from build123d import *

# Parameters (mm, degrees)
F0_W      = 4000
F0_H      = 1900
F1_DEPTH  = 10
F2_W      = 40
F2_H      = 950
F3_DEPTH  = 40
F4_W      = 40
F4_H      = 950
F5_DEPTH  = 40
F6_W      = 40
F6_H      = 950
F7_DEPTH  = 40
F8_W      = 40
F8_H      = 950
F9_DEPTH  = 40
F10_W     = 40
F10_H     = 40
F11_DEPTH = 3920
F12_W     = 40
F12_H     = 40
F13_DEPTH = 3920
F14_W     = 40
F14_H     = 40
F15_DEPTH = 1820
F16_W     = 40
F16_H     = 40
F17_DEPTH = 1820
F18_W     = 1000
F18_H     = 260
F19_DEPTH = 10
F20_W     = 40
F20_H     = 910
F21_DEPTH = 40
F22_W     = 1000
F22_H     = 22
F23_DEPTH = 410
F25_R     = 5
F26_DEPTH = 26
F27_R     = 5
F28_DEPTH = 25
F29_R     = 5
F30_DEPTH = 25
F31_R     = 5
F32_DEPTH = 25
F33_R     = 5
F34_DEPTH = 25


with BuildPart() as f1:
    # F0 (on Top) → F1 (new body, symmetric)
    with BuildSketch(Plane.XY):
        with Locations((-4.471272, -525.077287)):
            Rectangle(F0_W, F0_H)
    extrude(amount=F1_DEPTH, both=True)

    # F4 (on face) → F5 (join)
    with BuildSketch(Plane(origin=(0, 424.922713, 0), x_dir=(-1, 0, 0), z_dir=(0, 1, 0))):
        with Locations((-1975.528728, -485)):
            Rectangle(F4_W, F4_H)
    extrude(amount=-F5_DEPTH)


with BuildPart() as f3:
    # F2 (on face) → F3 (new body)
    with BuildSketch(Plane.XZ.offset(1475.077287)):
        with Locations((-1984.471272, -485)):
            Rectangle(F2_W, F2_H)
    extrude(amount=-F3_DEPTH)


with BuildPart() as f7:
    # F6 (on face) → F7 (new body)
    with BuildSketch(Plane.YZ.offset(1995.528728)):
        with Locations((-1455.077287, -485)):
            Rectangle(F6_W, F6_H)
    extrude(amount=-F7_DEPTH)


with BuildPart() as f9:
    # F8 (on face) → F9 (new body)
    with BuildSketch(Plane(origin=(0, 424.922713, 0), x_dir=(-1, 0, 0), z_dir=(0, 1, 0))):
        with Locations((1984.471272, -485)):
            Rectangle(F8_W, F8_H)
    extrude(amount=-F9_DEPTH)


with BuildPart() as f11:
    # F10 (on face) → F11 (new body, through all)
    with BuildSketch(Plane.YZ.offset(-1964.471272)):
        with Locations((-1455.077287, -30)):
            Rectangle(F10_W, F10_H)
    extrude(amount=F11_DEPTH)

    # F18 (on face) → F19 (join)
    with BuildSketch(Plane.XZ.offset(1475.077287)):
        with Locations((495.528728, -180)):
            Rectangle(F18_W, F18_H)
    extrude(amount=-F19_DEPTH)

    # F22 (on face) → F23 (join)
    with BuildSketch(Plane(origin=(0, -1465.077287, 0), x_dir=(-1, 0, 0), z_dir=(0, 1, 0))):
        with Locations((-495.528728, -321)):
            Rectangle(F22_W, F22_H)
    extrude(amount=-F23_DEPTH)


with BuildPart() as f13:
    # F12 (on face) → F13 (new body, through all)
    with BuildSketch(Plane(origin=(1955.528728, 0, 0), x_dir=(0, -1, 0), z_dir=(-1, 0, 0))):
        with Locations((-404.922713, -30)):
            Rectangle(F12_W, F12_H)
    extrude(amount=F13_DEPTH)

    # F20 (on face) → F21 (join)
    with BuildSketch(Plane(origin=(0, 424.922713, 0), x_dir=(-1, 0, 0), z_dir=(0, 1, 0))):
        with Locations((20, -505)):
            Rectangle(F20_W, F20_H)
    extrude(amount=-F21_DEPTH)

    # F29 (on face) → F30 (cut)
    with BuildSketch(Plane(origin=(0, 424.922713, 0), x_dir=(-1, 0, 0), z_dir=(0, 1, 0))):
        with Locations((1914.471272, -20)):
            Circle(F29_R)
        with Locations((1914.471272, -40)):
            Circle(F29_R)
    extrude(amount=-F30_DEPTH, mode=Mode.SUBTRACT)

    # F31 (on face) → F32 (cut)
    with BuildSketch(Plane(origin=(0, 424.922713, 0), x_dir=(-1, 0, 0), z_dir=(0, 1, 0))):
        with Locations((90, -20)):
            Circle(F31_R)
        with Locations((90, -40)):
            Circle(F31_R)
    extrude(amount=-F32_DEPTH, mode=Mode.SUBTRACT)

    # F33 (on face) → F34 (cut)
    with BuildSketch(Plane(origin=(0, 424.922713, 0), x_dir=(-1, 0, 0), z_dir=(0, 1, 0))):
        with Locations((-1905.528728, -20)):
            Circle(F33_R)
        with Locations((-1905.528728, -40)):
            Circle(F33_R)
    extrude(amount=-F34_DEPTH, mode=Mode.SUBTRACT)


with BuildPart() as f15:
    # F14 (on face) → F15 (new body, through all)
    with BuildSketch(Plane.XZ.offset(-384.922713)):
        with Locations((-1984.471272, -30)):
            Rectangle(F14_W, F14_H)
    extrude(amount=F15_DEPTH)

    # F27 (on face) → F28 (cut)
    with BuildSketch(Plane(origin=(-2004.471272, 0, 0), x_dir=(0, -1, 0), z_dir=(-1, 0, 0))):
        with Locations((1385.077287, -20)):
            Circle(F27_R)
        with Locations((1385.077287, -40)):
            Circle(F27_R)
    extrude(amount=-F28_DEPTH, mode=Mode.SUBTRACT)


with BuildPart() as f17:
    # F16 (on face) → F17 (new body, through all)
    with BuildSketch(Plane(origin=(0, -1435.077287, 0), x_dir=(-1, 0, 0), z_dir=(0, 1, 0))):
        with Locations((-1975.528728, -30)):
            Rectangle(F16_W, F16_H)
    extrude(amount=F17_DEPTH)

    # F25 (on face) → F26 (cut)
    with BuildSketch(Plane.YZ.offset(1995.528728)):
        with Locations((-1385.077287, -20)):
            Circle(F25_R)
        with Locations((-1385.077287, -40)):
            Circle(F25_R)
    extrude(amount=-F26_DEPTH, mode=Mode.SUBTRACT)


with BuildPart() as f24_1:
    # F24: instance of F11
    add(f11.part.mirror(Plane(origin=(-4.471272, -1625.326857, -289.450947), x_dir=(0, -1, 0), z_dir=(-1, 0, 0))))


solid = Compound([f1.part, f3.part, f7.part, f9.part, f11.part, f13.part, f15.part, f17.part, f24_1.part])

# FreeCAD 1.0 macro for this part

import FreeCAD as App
import Part
import Sketcher


def add_polygon(sketch, points):
    """Adds a closed chain of lines whose ends are joined by coincident constraints."""
    first, n = sketch.GeometryCount, len(points)
    for a, b in zip(points, points[1:] + points[:1]):
        sketch.addGeometry(Part.LineSegment(App.Vector(*a, 0), App.Vector(*b, 0)), False)
    for i in range(n):
        sketch.addConstraint(Sketcher.Constraint("Coincident", first + i, 2, first + (i + 1) % n, 1))

doc = App.newDocument("Part")
body = doc.addObject("PartDesign::Body", "Body")

sketch1 = body.newObject("Sketcher::SketchObject", "Sketch")
sketch1.AttachmentSupport = (doc.getObject("XY_Plane"), [""])
sketch1.MapMode = "FlatFace"
add_polygon(sketch1, [(-2004.471272, 424.922713), (-2004.471272, -1475.077287), (1995.528728, -1475.077287), (1995.528728, 424.922713)])
sketch1.addConstraint([
    Sketcher.Constraint("Vertical", 0),
    Sketcher.Constraint("Horizontal", 1),
    Sketcher.Constraint("Vertical", 2),
    Sketcher.Constraint("Horizontal", 3),
    Sketcher.Constraint("DistanceX", 1, 1, 1, 2, 4000.0),
    Sketcher.Constraint("DistanceY", 0, 2, 0, 1, 1900.0),
    Sketcher.Constraint("DistanceX", 0, 2, -1, 1, 2004.471272),
    Sketcher.Constraint("DistanceY", 0, 2, -1, 1, 1475.077287),
])
pad1 = body.newObject("PartDesign::Pad", "Pad")
pad1.Profile = sketch1
pad1.Length = 20
pad1.Midplane = True

sketch2 = body.newObject("Sketcher::SketchObject", "Sketch001")
sketch2.AttachmentSupport = (doc.getObject("XZ_Plane"), [""])
sketch2.MapMode = "FlatFace"
sketch2.AttachmentOffset = App.Placement(App.Vector(0, 0, -424.922713), App.Rotation())
add_polygon(sketch2, [(1995.528728, -10), (1995.528728, -960), (1955.528728, -960), (1955.528728, -10)])
sketch2.addConstraint([
    Sketcher.Constraint("Vertical", 0),
    Sketcher.Constraint("Horizontal", 1),
    Sketcher.Constraint("Vertical", 2),
    Sketcher.Constraint("Horizontal", 3),
    Sketcher.Constraint("DistanceX", 1, 2, 1, 1, 40.0),
    Sketcher.Constraint("DistanceY", 0, 2, 0, 1, 950.0),
    Sketcher.Constraint("DistanceY", 0, 2, -1, 1, 960.0),
    Sketcher.Constraint("DistanceX", -1, 1, 0, 2, 1995.528728),
])
pad2 = body.newObject("PartDesign::Pad", "Pad001")
pad2.Profile = sketch2
pad2.Length = 40
body2 = doc.addObject("PartDesign::Body", "Body001")

sketch3 = body2.newObject("Sketcher::SketchObject", "Sketch002")
sketch3.AttachmentSupport = (doc.getObject("XZ_Plane001"), [""])
sketch3.MapMode = "FlatFace"
sketch3.AttachmentOffset = App.Placement(App.Vector(0, 0, 1475.077287), App.Rotation())
add_polygon(sketch3, [(-2004.471272, -10), (-2004.471272, -960), (-1964.471272, -960), (-1964.471272, -10)])
sketch3.addConstraint([
    Sketcher.Constraint("Vertical", 0),
    Sketcher.Constraint("Horizontal", 1),
    Sketcher.Constraint("Vertical", 2),
    Sketcher.Constraint("Horizontal", 3),
    Sketcher.Constraint("DistanceX", 1, 1, 1, 2, 40.0),
    Sketcher.Constraint("DistanceY", 0, 2, 0, 1, 950.0),
    Sketcher.Constraint("DistanceY", 0, 2, -1, 1, 960.0),
    Sketcher.Constraint("DistanceX", 0, 2, -1, 1, 2004.471272),
])
pad3 = body2.newObject("PartDesign::Pad", "Pad002")
pad3.Profile = sketch3
pad3.Length = 40
pad3.Reversed = True
body3 = doc.addObject("PartDesign::Body", "Body002")

sketch4 = body3.newObject("Sketcher::SketchObject", "Sketch003")
sketch4.AttachmentSupport = (doc.getObject("YZ_Plane002"), [""])
sketch4.MapMode = "FlatFace"
sketch4.AttachmentOffset = App.Placement(App.Vector(0, 0, 1995.528728), App.Rotation())
add_polygon(sketch4, [(-1475.077287, -10), (-1475.077287, -960), (-1435.077287, -960), (-1435.077287, -10)])
sketch4.addConstraint([
    Sketcher.Constraint("Vertical", 0),
    Sketcher.Constraint("Horizontal", 1),
    Sketcher.Constraint("Vertical", 2),
    Sketcher.Constraint("Horizontal", 3),
    Sketcher.Constraint("DistanceX", 1, 1, 1, 2, 40.0),
    Sketcher.Constraint("DistanceY", 0, 2, 0, 1, 950.0),
    Sketcher.Constraint("DistanceY", 0, 2, -1, 1, 960.0),
    Sketcher.Constraint("DistanceX", 0, 2, -1, 1, 1475.077287),
])
pad4 = body3.newObject("PartDesign::Pad", "Pad003")
pad4.Profile = sketch4
pad4.Length = 40
pad4.Reversed = True
body4 = doc.addObject("PartDesign::Body", "Body003")

sketch5 = body4.newObject("Sketcher::SketchObject", "Sketch004")
sketch5.AttachmentSupport = (doc.getObject("XZ_Plane003"), [""])
sketch5.MapMode = "FlatFace"
sketch5.AttachmentOffset = App.Placement(App.Vector(0, 0, -424.922713), App.Rotation())
add_polygon(sketch5, [(-1964.471272, -10), (-1964.471272, -960), (-2004.471272, -960), (-2004.471272, -10)])
sketch5.addConstraint([
    Sketcher.Constraint("Vertical", 0),
    Sketcher.Constraint("Horizontal", 1),
    Sketcher.Constraint("Vertical", 2),
    Sketcher.Constraint("Horizontal", 3),
    Sketcher.Constraint("DistanceX", 1, 2, 1, 1, 40.0),
    Sketcher.Constraint("DistanceY", 0, 2, 0, 1, 950.0),
    Sketcher.Constraint("DistanceY", 0, 2, -1, 1, 960.0),
    Sketcher.Constraint("DistanceX", 0, 2, -1, 1, 1964.471272),
])
pad5 = body4.newObject("PartDesign::Pad", "Pad004")
pad5.Profile = sketch5
pad5.Length = 40
body5 = doc.addObject("PartDesign::Body", "Body004")

sketch6 = body5.newObject("Sketcher::SketchObject", "Sketch005")
sketch6.AttachmentSupport = (doc.getObject("YZ_Plane004"), [""])
sketch6.MapMode = "FlatFace"
sketch6.AttachmentOffset = App.Placement(App.Vector(0, 0, -1964.471272), App.Rotation())
add_polygon(sketch6, [(-1475.077287, -10), (-1475.077287, -50), (-1435.077287, -50), (-1435.077287, -10)])
sketch6.addConstraint([
    Sketcher.Constraint("Vertical", 0),
    Sketcher.Constraint("Horizontal", 1),
    Sketcher.Constraint("Vertical", 2),
    Sketcher.Constraint("Horizontal", 3),
    Sketcher.Constraint("Equal", 3, 0),
    Sketcher.Constraint("DistanceX", 1, 1, 1, 2, 40.0),
    Sketcher.Constraint("DistanceY", 0, 2, -1, 1, 50.0),
    Sketcher.Constraint("DistanceX", 0, 2, -1, 1, 1475.077287),
])
pad6 = body5.newObject("PartDesign::Pad", "Pad005")
pad6.Profile = sketch6
pad6.Length = 3920

sketch7 = body5.newObject("Sketcher::SketchObject", "Sketch006")
sketch7.AttachmentSupport = (doc.getObject("XZ_Plane004"), [""])
sketch7.MapMode = "FlatFace"
sketch7.AttachmentOffset = App.Placement(App.Vector(0, 0, 1475.077287), App.Rotation())
add_polygon(sketch7, [(-4.471272, -50), (-4.471272, -310), (995.528728, -310), (995.528728, -50)])
sketch7.addConstraint([
    Sketcher.Constraint("Vertical", 0),
    Sketcher.Constraint("Horizontal", 1),
    Sketcher.Constraint("Vertical", 2),
    Sketcher.Constraint("Horizontal", 3),
    Sketcher.Constraint("DistanceX", 1, 1, 1, 2, 1000.0),
    Sketcher.Constraint("DistanceY", 0, 2, 0, 1, 260.0),
    Sketcher.Constraint("DistanceY", 0, 2, -1, 1, 310.0),
    Sketcher.Constraint("DistanceX", -1, 1, 1, 2, 995.528728),
])
pad7 = body5.newObject("PartDesign::Pad", "Pad006")
pad7.Profile = sketch7
pad7.Length = 10
pad7.Reversed = True

sketch8 = body5.newObject("Sketcher::SketchObject", "Sketch007")
sketch8.AttachmentSupport = (doc.getObject("XZ_Plane004"), [""])
sketch8.MapMode = "FlatFace"
sketch8.AttachmentOffset = App.Placement(App.Vector(0, 0, 1465.077287), App.Rotation())
add_polygon(sketch8, [(995.528728, -310), (995.528728, -332), (-4.471272, -332), (-4.471272, -310)])
sketch8.addConstraint([
    Sketcher.Constraint("Vertical", 0),
    Sketcher.Constraint("Horizontal", 1),
    Sketcher.Constraint("Vertical", 2),
    Sketcher.Constraint("Horizontal", 3),
    Sketcher.Constraint("DistanceX", 1, 2, 1, 1, 1000.0),
    Sketcher.Constraint("DistanceY", 0, 2, 0, 1, 22.0),
    Sketcher.Constraint("DistanceY", 0, 2, -1, 1, 332.0),
    Sketcher.Constraint("DistanceX", -1, 1, 0, 2, 995.528728),
])
pad8 = body5.newObject("PartDesign::Pad", "Pad007")
pad8.Profile = sketch8
pad8.Length = 410
body6 = doc.addObject("PartDesign::Body", "Body005")

sketch9 = body6.newObject("Sketcher::SketchObject", "Sketch008")
sketch9.AttachmentSupport = (doc.getObject("YZ_Plane005"), [""])
sketch9.MapMode = "FlatFace"
sketch9.AttachmentOffset = App.Placement(App.Vector(0, 0, 1955.528728), App.Rotation())
add_polygon(sketch9, [(424.922713, -10), (424.922713, -50), (384.922713, -50), (384.922713, -10)])
sketch9.addConstraint([
    Sketcher.Constraint("Vertical", 0),
    Sketcher.Constraint("Horizontal", 1),
    Sketcher.Constraint("Vertical", 2),
    Sketcher.Constraint("Horizontal", 3),
    Sketcher.Constraint("Equal", 3, 0),
    Sketcher.Constraint("DistanceX", 1, 2, 1, 1, 40.0),
    Sketcher.Constraint("DistanceY", 0, 2, -1, 1, 50.0),
    Sketcher.Constraint("DistanceX", -1, 1, 0, 2, 424.922713),
])
pad9 = body6.newObject("PartDesign::Pad", "Pad008")
pad9.Profile = sketch9
pad9.Length = 3920
pad9.Reversed = True

sketch10 = body6.newObject("Sketcher::SketchObject", "Sketch009")
sketch10.AttachmentSupport = (doc.getObject("XZ_Plane005"), [""])
sketch10.MapMode = "FlatFace"
sketch10.AttachmentOffset = App.Placement(App.Vector(0, 0, -424.922713), App.Rotation())
add_polygon(sketch10, [(0, -50), (0, -960), (-40, -960), (-40, -50)])
sketch10.addConstraint([
    Sketcher.Constraint("Vertical", 0),
    Sketcher.Constraint("Horizontal", 1),
    Sketcher.Constraint("Vertical", 2),
    Sketcher.Constraint("Horizontal", 3),
    Sketcher.Constraint("PointOnObject", 0, 2, -2),
    Sketcher.Constraint("DistanceX", 1, 2, 1, 1, 40.0),
    Sketcher.Constraint("DistanceY", 0, 2, 0, 1, 910.0),
    Sketcher.Constraint("DistanceY", 0, 2, -1, 1, 960.0),
])
pad10 = body6.newObject("PartDesign::Pad", "Pad009")
pad10.Profile = sketch10
pad10.Length = 40

sketch11 = body6.newObject("Sketcher::SketchObject", "Sketch010")
sketch11.AttachmentSupport = (doc.getObject("XZ_Plane005"), [""])
sketch11.MapMode = "FlatFace"
sketch11.AttachmentOffset = App.Placement(App.Vector(0, 0, -424.922713), App.Rotation())
sketch11.addGeometry([
    Part.Circle(App.Vector(-1914.471272, -20, 0), App.Vector(0, 0, 1), 5),
    Part.Circle(App.Vector(-1914.471272, -40, 0), App.Vector(0, 0, 1), 5),
], False)
sketch11.addConstraint([
    Sketcher.Constraint("Equal", 0, 1),
    Sketcher.Constraint("Vertical", 0, 3, 1, 3),
    Sketcher.Constraint("Diameter", 0, 10.0),
    Sketcher.Constraint("DistanceY", 0, 3, -1, 1, 20.0),
    Sketcher.Constraint("DistanceY", 1, 3, -1, 1, 40.0),
    Sketcher.Constraint("DistanceX", 0, 3, -1, 1, 1914.471272),
])
pocket1 = body6.newObject("PartDesign::Pocket", "Pocket")
pocket1.Profile = sketch11
pocket1.Length = 25
pocket1.Reversed = True

sketch12 = body6.newObject("Sketcher::SketchObject", "Sketch011")
sketch12.AttachmentSupport = (doc.getObject("XZ_Plane005"), [""])
sketch12.MapMode = "FlatFace"
sketch12.AttachmentOffset = App.Placement(App.Vector(0, 0, -424.922713), App.Rotation())
sketch12.addGeometry([
    Part.Circle(App.Vector(-90, -20, 0), App.Vector(0, 0, 1), 5),
    Part.Circle(App.Vector(-90, -40, 0), App.Vector(0, 0, 1), 5),
], False)
sketch12.addConstraint([
    Sketcher.Constraint("Equal", 0, 1),
    Sketcher.Constraint("Vertical", 0, 3, 1, 3),
    Sketcher.Constraint("Diameter", 0, 10.0),
    Sketcher.Constraint("DistanceX", 0, 3, -1, 1, 90.0),
    Sketcher.Constraint("DistanceY", 0, 3, -1, 1, 20.0),
    Sketcher.Constraint("DistanceY", 1, 3, -1, 1, 40.0),
])
pocket2 = body6.newObject("PartDesign::Pocket", "Pocket001")
pocket2.Profile = sketch12
pocket2.Length = 25
pocket2.Reversed = True

sketch13 = body6.newObject("Sketcher::SketchObject", "Sketch012")
sketch13.AttachmentSupport = (doc.getObject("XZ_Plane005"), [""])
sketch13.MapMode = "FlatFace"
sketch13.AttachmentOffset = App.Placement(App.Vector(0, 0, -424.922713), App.Rotation())
sketch13.addGeometry([
    Part.Circle(App.Vector(1905.528728, -20, 0), App.Vector(0, 0, 1), 5),
    Part.Circle(App.Vector(1905.528728, -40, 0), App.Vector(0, 0, 1), 5),
], False)
sketch13.addConstraint([
    Sketcher.Constraint("Equal", 0, 1),
    Sketcher.Constraint("Vertical", 0, 3, 1, 3),
    Sketcher.Constraint("Diameter", 0, 10.0),
    Sketcher.Constraint("DistanceY", 0, 3, -1, 1, 20.0),
    Sketcher.Constraint("DistanceY", 1, 3, -1, 1, 40.0),
    Sketcher.Constraint("DistanceX", -1, 1, 0, 3, 1905.528728),
])
pocket3 = body6.newObject("PartDesign::Pocket", "Pocket002")
pocket3.Profile = sketch13
pocket3.Length = 25
pocket3.Reversed = True
body7 = doc.addObject("PartDesign::Body", "Body006")

sketch14 = body7.newObject("Sketcher::SketchObject", "Sketch013")
sketch14.AttachmentSupport = (doc.getObject("XZ_Plane006"), [""])
sketch14.MapMode = "FlatFace"
sketch14.AttachmentOffset = App.Placement(App.Vector(0, 0, -384.922713), App.Rotation())
add_polygon(sketch14, [(-2004.471272, -10), (-2004.471272, -50), (-1964.471272, -50), (-1964.471272, -10)])
sketch14.addConstraint([
    Sketcher.Constraint("Vertical", 0),
    Sketcher.Constraint("Horizontal", 1),
    Sketcher.Constraint("Vertical", 2),
    Sketcher.Constraint("Horizontal", 3),
    Sketcher.Constraint("Equal", 3, 0),
    Sketcher.Constraint("DistanceX", 1, 1, 1, 2, 40.0),
    Sketcher.Constraint("DistanceY", 0, 2, -1, 1, 50.0),
    Sketcher.Constraint("DistanceX", 0, 2, -1, 1, 2004.471272),
])
pad11 = body7.newObject("PartDesign::Pad", "Pad010")
pad11.Profile = sketch14
pad11.Length = 1820

sketch15 = body7.newObject("Sketcher::SketchObject", "Sketch014")
sketch15.AttachmentSupport = (doc.getObject("YZ_Plane006"), [""])
sketch15.MapMode = "FlatFace"
sketch15.AttachmentOffset = App.Placement(App.Vector(0, 0, -2004.471272), App.Rotation())
sketch15.addGeometry([
    Part.Circle(App.Vector(-1385.077287, -20, 0), App.Vector(0, 0, 1), 5),
    Part.Circle(App.Vector(-1385.077287, -40, 0), App.Vector(0, 0, 1), 5),
], False)
sketch15.addConstraint([
    Sketcher.Constraint("Equal", 0, 1),
    Sketcher.Constraint("Vertical", 0, 3, 1, 3),
    Sketcher.Constraint("Diameter", 0, 10.0),
    Sketcher.Constraint("DistanceY", 0, 3, -1, 1, 20.0),
    Sketcher.Constraint("DistanceY", 1, 3, -1, 1, 40.0),
    Sketcher.Constraint("DistanceX", 0, 3, -1, 1, 1385.077287),
])
pocket4 = body7.newObject("PartDesign::Pocket", "Pocket003")
pocket4.Profile = sketch15
pocket4.Length = 25
pocket4.Reversed = True
body8 = doc.addObject("PartDesign::Body", "Body007")

sketch16 = body8.newObject("Sketcher::SketchObject", "Sketch015")
sketch16.AttachmentSupport = (doc.getObject("XZ_Plane007"), [""])
sketch16.MapMode = "FlatFace"
sketch16.AttachmentOffset = App.Placement(App.Vector(0, 0, 1435.077287), App.Rotation())
add_polygon(sketch16, [(1995.528728, -10), (1995.528728, -50), (1955.528728, -50), (1955.528728, -10)])
sketch16.addConstraint([
    Sketcher.Constraint("Vertical", 0),
    Sketcher.Constraint("Horizontal", 1),
    Sketcher.Constraint("Vertical", 2),
    Sketcher.Constraint("Horizontal", 3),
    Sketcher.Constraint("Equal", 3, 0),
    Sketcher.Constraint("DistanceX", 1, 2, 1, 1, 40.0),
    Sketcher.Constraint("DistanceY", 0, 2, -1, 1, 50.0),
    Sketcher.Constraint("DistanceX", -1, 1, 0, 2, 1995.528728),
])
pad12 = body8.newObject("PartDesign::Pad", "Pad011")
pad12.Profile = sketch16
pad12.Length = 1820
pad12.Reversed = True

sketch17 = body8.newObject("Sketcher::SketchObject", "Sketch016")
sketch17.AttachmentSupport = (doc.getObject("YZ_Plane007"), [""])
sketch17.MapMode = "FlatFace"
sketch17.AttachmentOffset = App.Placement(App.Vector(0, 0, 1995.528728), App.Rotation())
sketch17.addGeometry([
    Part.Circle(App.Vector(-1385.077287, -20, 0), App.Vector(0, 0, 1), 5),
    Part.Circle(App.Vector(-1385.077287, -40, 0), App.Vector(0, 0, 1), 5),
], False)
sketch17.addConstraint([
    Sketcher.Constraint("Equal", 0, 1),
    Sketcher.Constraint("Vertical", 0, 3, 1, 3),
    Sketcher.Constraint("Diameter", 0, 10.0),
    Sketcher.Constraint("DistanceY", 0, 3, -1, 1, 20.0),
    Sketcher.Constraint("DistanceY", 1, 3, -1, 1, 40.0),
    Sketcher.Constraint("DistanceX", 0, 3, -1, 1, 1385.077287),
])
pocket5 = body8.newObject("PartDesign::Pocket", "Pocket004")
pocket5.Profile = sketch17
pocket5.Length = 26
body9 = doc.addObject("PartDesign::Body", "Body008")
doc.recompute()

mirroring = doc.addObject("Part::Mirroring", "Mirroring")
mirroring.Source = body5
mirroring.Base = App.Vector(-4.471272, -1625.326857, -289.450947)
mirroring.Normal = App.Vector(-1, 0, 0)
body9.BaseFeature = mirroring
doc.recompute()
mirroring.Visibility = False

doc.recompute()
